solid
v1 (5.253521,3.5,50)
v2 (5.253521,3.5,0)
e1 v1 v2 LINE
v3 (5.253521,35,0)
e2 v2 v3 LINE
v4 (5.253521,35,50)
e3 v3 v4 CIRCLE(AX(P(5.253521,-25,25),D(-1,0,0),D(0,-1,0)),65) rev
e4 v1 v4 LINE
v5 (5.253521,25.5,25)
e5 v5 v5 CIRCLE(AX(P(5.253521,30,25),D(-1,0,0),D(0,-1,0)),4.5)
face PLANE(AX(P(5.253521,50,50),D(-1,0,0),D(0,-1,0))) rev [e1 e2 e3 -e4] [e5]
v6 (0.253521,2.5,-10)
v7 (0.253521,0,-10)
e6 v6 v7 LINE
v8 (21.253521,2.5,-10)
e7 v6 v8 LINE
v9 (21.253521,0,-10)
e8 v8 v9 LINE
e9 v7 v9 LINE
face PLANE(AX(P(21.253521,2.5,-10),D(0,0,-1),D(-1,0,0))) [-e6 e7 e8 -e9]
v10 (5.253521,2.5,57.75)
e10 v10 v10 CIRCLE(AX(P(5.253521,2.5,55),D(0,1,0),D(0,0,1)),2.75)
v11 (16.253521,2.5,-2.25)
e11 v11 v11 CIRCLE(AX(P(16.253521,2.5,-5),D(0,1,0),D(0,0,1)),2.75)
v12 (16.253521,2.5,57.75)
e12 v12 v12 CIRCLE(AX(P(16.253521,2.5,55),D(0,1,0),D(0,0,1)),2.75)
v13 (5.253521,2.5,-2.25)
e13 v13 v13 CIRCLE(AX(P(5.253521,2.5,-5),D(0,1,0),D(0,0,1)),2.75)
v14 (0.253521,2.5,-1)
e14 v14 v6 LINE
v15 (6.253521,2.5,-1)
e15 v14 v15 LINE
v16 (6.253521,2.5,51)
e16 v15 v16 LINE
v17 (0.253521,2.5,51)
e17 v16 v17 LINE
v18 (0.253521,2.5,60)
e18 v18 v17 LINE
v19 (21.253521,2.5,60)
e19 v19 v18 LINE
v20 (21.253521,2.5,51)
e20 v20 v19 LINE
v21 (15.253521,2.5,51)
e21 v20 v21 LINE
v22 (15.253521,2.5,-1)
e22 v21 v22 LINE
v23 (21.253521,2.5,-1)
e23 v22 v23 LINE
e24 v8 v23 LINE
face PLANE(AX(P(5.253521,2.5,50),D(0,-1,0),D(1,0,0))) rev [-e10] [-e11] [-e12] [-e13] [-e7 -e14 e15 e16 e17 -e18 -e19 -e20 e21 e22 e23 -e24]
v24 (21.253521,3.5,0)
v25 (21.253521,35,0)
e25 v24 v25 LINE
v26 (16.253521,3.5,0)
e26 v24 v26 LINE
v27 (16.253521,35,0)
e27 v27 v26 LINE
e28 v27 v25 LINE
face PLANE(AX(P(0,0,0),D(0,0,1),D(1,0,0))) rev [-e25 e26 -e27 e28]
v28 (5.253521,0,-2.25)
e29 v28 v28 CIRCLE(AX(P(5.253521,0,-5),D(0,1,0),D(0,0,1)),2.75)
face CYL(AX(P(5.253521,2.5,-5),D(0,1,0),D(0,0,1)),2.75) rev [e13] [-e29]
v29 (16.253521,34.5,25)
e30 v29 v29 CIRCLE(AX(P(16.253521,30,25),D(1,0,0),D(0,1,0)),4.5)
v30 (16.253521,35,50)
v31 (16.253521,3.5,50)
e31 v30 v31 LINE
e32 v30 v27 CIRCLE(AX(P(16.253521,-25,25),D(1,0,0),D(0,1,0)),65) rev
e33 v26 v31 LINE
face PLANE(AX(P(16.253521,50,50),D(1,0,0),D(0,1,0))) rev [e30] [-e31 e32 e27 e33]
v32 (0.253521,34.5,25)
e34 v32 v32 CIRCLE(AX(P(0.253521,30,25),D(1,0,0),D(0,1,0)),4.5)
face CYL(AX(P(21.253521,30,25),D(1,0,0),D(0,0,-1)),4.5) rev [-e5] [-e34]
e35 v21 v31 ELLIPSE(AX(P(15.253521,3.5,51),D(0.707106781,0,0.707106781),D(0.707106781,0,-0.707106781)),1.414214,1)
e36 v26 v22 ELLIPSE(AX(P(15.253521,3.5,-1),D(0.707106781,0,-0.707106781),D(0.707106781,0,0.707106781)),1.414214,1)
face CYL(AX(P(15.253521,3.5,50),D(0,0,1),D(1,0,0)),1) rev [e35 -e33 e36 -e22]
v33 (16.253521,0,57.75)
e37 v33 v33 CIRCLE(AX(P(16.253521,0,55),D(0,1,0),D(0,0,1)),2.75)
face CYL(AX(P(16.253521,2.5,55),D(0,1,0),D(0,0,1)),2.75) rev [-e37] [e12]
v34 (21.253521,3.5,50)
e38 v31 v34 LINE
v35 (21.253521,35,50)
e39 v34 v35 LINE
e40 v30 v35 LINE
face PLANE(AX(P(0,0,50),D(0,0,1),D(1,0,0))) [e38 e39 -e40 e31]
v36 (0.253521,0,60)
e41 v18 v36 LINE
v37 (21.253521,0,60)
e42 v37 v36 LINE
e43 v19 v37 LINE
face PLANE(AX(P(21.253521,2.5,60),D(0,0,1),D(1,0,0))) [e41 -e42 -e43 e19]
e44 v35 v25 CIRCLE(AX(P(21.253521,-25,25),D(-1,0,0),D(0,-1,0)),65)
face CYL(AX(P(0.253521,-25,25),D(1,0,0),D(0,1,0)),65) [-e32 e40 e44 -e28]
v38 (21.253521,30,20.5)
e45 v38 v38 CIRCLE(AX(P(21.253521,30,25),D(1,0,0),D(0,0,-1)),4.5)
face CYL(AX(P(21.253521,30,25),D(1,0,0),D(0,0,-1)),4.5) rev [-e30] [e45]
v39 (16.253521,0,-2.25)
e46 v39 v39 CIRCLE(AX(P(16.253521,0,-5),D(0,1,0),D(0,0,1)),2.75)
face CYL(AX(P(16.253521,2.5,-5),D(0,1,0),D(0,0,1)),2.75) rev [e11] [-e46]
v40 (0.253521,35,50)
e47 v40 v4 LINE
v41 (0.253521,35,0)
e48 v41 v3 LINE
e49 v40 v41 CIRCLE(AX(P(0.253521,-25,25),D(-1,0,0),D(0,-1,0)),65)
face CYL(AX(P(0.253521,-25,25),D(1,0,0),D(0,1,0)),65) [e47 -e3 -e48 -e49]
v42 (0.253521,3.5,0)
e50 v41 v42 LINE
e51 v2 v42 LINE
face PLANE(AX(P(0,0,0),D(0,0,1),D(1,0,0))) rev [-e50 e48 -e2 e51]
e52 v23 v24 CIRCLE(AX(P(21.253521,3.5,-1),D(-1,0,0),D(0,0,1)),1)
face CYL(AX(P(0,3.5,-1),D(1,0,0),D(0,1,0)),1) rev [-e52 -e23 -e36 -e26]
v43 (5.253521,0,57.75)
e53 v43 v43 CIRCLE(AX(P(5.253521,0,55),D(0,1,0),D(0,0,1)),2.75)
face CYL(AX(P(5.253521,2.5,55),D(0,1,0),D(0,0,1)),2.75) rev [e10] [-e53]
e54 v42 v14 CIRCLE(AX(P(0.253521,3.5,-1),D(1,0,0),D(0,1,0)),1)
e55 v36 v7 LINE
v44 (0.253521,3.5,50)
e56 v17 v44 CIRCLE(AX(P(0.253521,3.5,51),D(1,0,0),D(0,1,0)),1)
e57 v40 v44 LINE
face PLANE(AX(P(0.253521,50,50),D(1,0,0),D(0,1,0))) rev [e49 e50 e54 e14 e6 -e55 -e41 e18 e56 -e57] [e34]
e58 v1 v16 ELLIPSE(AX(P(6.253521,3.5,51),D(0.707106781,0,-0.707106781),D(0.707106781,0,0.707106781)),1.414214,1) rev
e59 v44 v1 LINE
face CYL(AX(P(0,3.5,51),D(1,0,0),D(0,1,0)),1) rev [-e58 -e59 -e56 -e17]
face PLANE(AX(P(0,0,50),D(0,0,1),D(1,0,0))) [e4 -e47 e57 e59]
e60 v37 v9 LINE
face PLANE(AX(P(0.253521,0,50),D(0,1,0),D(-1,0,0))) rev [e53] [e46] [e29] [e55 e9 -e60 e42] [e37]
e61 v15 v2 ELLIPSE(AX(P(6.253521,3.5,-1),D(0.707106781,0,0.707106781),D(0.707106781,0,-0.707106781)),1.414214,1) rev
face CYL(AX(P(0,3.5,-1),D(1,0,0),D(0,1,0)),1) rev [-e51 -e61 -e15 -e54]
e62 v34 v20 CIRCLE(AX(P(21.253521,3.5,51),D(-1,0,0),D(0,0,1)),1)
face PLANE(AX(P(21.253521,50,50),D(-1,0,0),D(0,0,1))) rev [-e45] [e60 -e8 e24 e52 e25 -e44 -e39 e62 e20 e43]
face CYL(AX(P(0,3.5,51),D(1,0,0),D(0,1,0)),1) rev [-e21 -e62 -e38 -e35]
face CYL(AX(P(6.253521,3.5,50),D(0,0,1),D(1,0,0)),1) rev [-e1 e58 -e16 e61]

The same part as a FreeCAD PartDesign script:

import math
import FreeCAD as App
import Part
import Sketcher
from FreeCAD import Vector


def edges_at(feature, points):
    """Names of the edges that pass closest to the given points."""
    edges = feature.Shape.Edges
    near = lambda p: min(range(len(edges)), key=lambda i: edges[i].distToShape(Part.Vertex(*p))[0])
    return sorted({f"Edge{near(p) + 1}" for p in points})

doc = App.newDocument("Part")
params = doc.addObject("Spreadsheet::Sheet", "Params")
for row, (alias, value) in enumerate([
    ("sketch1_width", "5 mm"),
    ("sketch1_width2", "21 mm"),
    ("sketch1_height", "50 mm"),
    ("sketch1_height2", "47.5 mm"),
    ("pad1_length", "50 mm"),
    ("sketch2_radius", "65 mm"),
    ("sketch2_width", "15 mm"),
    ("sketch2_height", "50 mm"),
    ("sketch3_diameter", "9 mm"),
    ("hole_diameter", "9 mm"),
    ("hole_depth", "30 mm"),
    ("sketch4_width", "21 mm"),
    ("sketch4_height", "10 mm"),
    ("pad2_length", "2.5 mm"),
    ("fillet_radius", "1 mm"),
    ("sketch5_diameter", "5.5 mm"),
    ("hole2_diameter", "5.5 mm"),
], start=1):
    params.set(f"A{row}", alias)
    params.set(f"B{row}", "=" + value)
    params.setAlias(f"B{row}", alias)

body = doc.addObject("PartDesign::Body", "Body")

sketch1 = doc.addObject("Sketcher::SketchObject", "Sketch")
body.addObject(sketch1)
sketch1.AttachmentSupport = (doc.XY_Plane, [""])
sketch1.MapMode = "FlatFace"
sketch1.addGeometry([
    Part.LineSegment(Vector(5, 50, 0), Vector(0, 50, 0)),
    Part.LineSegment(Vector(0, 50, 0), Vector(0, 0, 0)),
    Part.LineSegment(Vector(0, 0, 0), Vector(21, 0, 0)),
    Part.LineSegment(Vector(21, 0, 0), Vector(21, 50, 0)),
    Part.LineSegment(Vector(21, 50, 0), Vector(16, 50, 0)),
    Part.LineSegment(Vector(16, 50, 0), Vector(16, 2, 0)),
    Part.LineSegment(Vector(16, 2, 0), Vector(5, 2, 0)),
    Part.LineSegment(Vector(5, 2, 0), Vector(5, 50, 0)),
], False)
sketch1.addConstraint([
    Sketcher.Constraint("Coincident", 0, 2, 1, 1),
    Sketcher.Constraint("Coincident", 1, 2, 2, 1),
    Sketcher.Constraint("Coincident", 2, 2, 3, 1),
    Sketcher.Constraint("Coincident", 3, 2, 4, 1),
    Sketcher.Constraint("Coincident", 4, 2, 5, 1),
    Sketcher.Constraint("Coincident", 5, 2, 6, 1),
    Sketcher.Constraint("Coincident", 6, 2, 7, 1),
    Sketcher.Constraint("Coincident", 7, 2, 0, 1),
    Sketcher.Constraint("Horizontal", 0),
    Sketcher.Constraint("Vertical", 1),
    Sketcher.Constraint("Horizontal", 2),
    Sketcher.Constraint("Vertical", 3),
    Sketcher.Constraint("Horizontal", 4),
    Sketcher.Constraint("Vertical", 5),
    Sketcher.Constraint("Horizontal", 6),
    Sketcher.Constraint("Vertical", 7),
    Sketcher.Constraint("PointOnObject", 1, 2, -1),
    Sketcher.Constraint("Horizontal", 0, 2, 3, 2),
    Sketcher.Constraint("Equal", 0, 4),
    Sketcher.Constraint("DistanceX", 0, 2, 0, 1, 5.0),
    Sketcher.Constraint("DistanceX", 2, 1, 2, 2, 21.0),
    Sketcher.Constraint("DistanceY", 1, 2, 1, 1, 50.0),
    Sketcher.Constraint("DistanceY", 5, 2, 5, 1, 47.5),
    Sketcher.Constraint("DistanceX", -1, 1, 0, 2, 0.253521),
])
sketch1.setExpression("Constraints[19]", "Params.sketch1_width")
sketch1.setExpression("Constraints[20]", "Params.sketch1_width2")
sketch1.setExpression("Constraints[21]", "Params.sketch1_height")
sketch1.setExpression("Constraints[22]", "Params.sketch1_height2")
pad1 = doc.addObject("PartDesign::Pad", "Pad")
body.addObject(pad1)
pad1.Profile = sketch1
pad1.setExpression("Length", "Params.pad1_length")

sketch2 = doc.addObject("Sketcher::SketchObject", "Sketch001")
body.addObject(sketch2)
sketch2.AttachmentSupport = (doc.YZ_Plane, [""])
sketch2.MapMode = "FlatFace"
sketch2.AttachmentOffset = App.Placement(Vector(0, 0, 21.253521), App.Rotation())
sketch2.addGeometry([
    Part.LineSegment(Vector(50, 50, 0), Vector(35, 50, 0)),
    Part.ArcOfCircle(Part.Circle(Vector(-25, 25, 0), Vector(0, 0, 1), 65), math.radians(-23), math.radians(23)),
    Part.LineSegment(Vector(35, 0, 0), Vector(50, 0, 0)),
    Part.LineSegment(Vector(50, 0, 0), Vector(50, 50, 0)),
], False)
sketch2.addConstraint([
    Sketcher.Constraint("Coincident", 0, 2, 1, 2),
    Sketcher.Constraint("Coincident", 1, 1, 2, 1),
    Sketcher.Constraint("Coincident", 2, 2, 3, 1),
    Sketcher.Constraint("Coincident", 3, 2, 0, 1),
    Sketcher.Constraint("Horizontal", 0),
    Sketcher.Constraint("Horizontal", 2),
    Sketcher.Constraint("Vertical", 3),
    Sketcher.Constraint("PointOnObject", 1, 1, -1),
    Sketcher.Constraint("Vertical", 0, 2, 1, 1),
    Sketcher.Constraint("Radius", 1, 65.0),
    Sketcher.Constraint("DistanceX", 0, 2, 0, 1, 15.0),
    Sketcher.Constraint("DistanceY", 3, 1, 3, 2, 50.0),
    Sketcher.Constraint("DistanceX", 1, 3, -1, 1, 25.0),
])
sketch2.setExpression("Constraints[9]", "Params.sketch2_radius")
sketch2.setExpression("Constraints[10]", "Params.sketch2_width")
sketch2.setExpression("Constraints[11]", "Params.sketch2_height")
pocket1 = doc.addObject("PartDesign::Pocket", "Pocket")
body.addObject(pocket1)
pocket1.Profile = sketch2
pocket1.Type = "ThroughAll"

sketch3 = doc.addObject("Sketcher::SketchObject", "Sketch002")
body.addObject(sketch3)
sketch3.AttachmentSupport = (doc.YZ_Plane, [""])
sketch3.MapMode = "FlatFace"
sketch3.AttachmentOffset = App.Placement(Vector(0, 0, 21.253521), App.Rotation())
sketch3.addGeometry(Part.Circle(Vector(30, 25, 0), Vector(0, 0, 1), 4.5), False)
sketch3.addConstraint([
    Sketcher.Constraint("Diameter", 0, 9.0),
    Sketcher.Constraint("DistanceX", -1, 1, 0, 3, 30.0),
    Sketcher.Constraint("DistanceY", -1, 1, 0, 3, 25.0),
])
sketch3.setExpression("Constraints[0]", "Params.sketch3_diameter")
doc.recompute()
hole = doc.addObject("PartDesign::Hole", "Hole")
body.addObject(hole)
hole.Profile = sketch3
hole.ThreadType = "None"
hole.setExpression("Diameter", "Params.hole_diameter")
hole.DepthType = "Dimension"
hole.setExpression("Depth", "Params.hole_depth")
hole.DrillPoint = "Angled"
hole.DrillPointAngle = 118

sketch4 = doc.addObject("Sketcher::SketchObject", "Sketch003")
body.addObject(sketch4)
sketch4.AttachmentSupport = (doc.XZ_Plane, [""])
sketch4.MapMode = "FlatFace"
sketch4.addGeometry([
    Part.LineSegment(Vector(0, 0, 0), Vector(0, -10, 0)),
    Part.LineSegment(Vector(0, -10, 0), Vector(21, -10, 0)),
    Part.LineSegment(Vector(21, -10, 0), Vector(21, 0, 0)),
    Part.LineSegment(Vector(21, 0, 0), Vector(0, 0, 0)),
    Part.LineSegment(Vector(0, 60, 0), Vector(0, 50, 0)),
    Part.LineSegment(Vector(0, 50, 0), Vector(21, 50, 0)),
    Part.LineSegment(Vector(21, 50, 0), Vector(21, 60, 0)),
    Part.LineSegment(Vector(21, 60, 0), Vector(0, 60, 0)),
], False)
sketch4.addConstraint([
    Sketcher.Constraint("Coincident", 0, 2, 1, 1),
    Sketcher.Constraint("Coincident", 1, 2, 2, 1),
    Sketcher.Constraint("Coincident", 2, 2, 3, 1),
    Sketcher.Constraint("Coincident", 3, 2, 0, 1),
    Sketcher.Constraint("Coincident", 4, 2, 5, 1),
    Sketcher.Constraint("Coincident", 5, 2, 6, 1),
    Sketcher.Constraint("Coincident", 6, 2, 7, 1),
    Sketcher.Constraint("Coincident", 7, 2, 4, 1),
    Sketcher.Constraint("Vertical", 0),
    Sketcher.Constraint("Horizontal", 1),
    Sketcher.Constraint("Vertical", 2),
    Sketcher.Constraint("Horizontal", 3),
    Sketcher.Constraint("Vertical", 4),
    Sketcher.Constraint("Horizontal", 5),
    Sketcher.Constraint("Vertical", 6),
    Sketcher.Constraint("Horizontal", 7),
    Sketcher.Constraint("PointOnObject", 2, 2, -1),
    Sketcher.Constraint("Vertical", 3, 2, 4, 2),
    Sketcher.Constraint("Vertical", 2, 2, 5, 2),
    Sketcher.Constraint("Equal", 2, 4),
    Sketcher.Constraint("DistanceX", 1, 1, 1, 2, 21.0),
    Sketcher.Constraint("DistanceY", 0, 2, 0, 1, 10.0),
    Sketcher.Constraint("DistanceY", -1, 1, 4, 2, 50.0),
    Sketcher.Constraint("DistanceX", -1, 1, 0, 2, 0.253521),
])
sketch4.setExpression("Constraints[20]", "Params.sketch4_width")
sketch4.setExpression("Constraints[21]", "Params.sketch4_height")
pad2 = doc.addObject("PartDesign::Pad", "Pad001")
body.addObject(pad2)
pad2.Profile = sketch4
pad2.setExpression("Length", "Params.pad2_length")
pad2.Reversed = True
doc.recompute()

fillet = doc.addObject("PartDesign::Fillet", "Fillet")
body.addObject(fillet)
fillet.Base = (pad2, edges_at(pad2, [
    (5.254, 2.5, 25),
    (16.254, 2.5, 25),
    (2.754, 2.5, 0),
    (18.754, 2.5, 0),
    (18.754, 2.5, 50),
    (2.754, 2.5, 50),
]))
fillet.setExpression("Radius", "Params.fillet_radius")

sketch5 = doc.addObject("Sketcher::SketchObject", "Sketch004")
body.addObject(sketch5)
sketch5.AttachmentSupport = (doc.XZ_Plane, [""])
sketch5.MapMode = "FlatFace"
sketch5.AttachmentOffset = App.Placement(Vector(0, 0, -2.5), App.Rotation())
sketch5.addGeometry([
    Part.Circle(Vector(5.3, 55, 0), Vector(0, 0, 1), 2.8),
    Part.Circle(Vector(16.3, 55, 0), Vector(0, 0, 1), 2.8),
    Part.Circle(Vector(5.3, -5, 0), Vector(0, 0, 1), 2.8),
    Part.Circle(Vector(16.3, -5, 0), Vector(0, 0, 1), 2.8),
], False)
sketch5.addConstraint([
    Sketcher.Constraint("Equal", 0, 1),
    Sketcher.Constraint("Equal", 1, 2),
    Sketcher.Constraint("Equal", 2, 3),
    Sketcher.Constraint("Horizontal", 0, 3, 1, 3),
    Sketcher.Constraint("Horizontal", 2, 3, 3, 3),
    Sketcher.Constraint("Vertical", 0, 3, 2, 3),
    Sketcher.Constraint("Vertical", 1, 3, 3, 3),
    Sketcher.Constraint("Diameter", 0, 5.5),
    Sketcher.Constraint("DistanceY", -1, 1, 0, 3, 55.0),
    Sketcher.Constraint("DistanceY", 2, 3, -1, 1, 5.0),
    Sketcher.Constraint("DistanceX", 0, 3, 1, 3, 11.0),
    Sketcher.Constraint("DistanceX", -1, 1, 0, 3, 5.253521),
])
sketch5.setExpression("Constraints[7]", "Params.sketch5_diameter")
doc.recompute()
hole2 = doc.addObject("PartDesign::Hole", "Hole001")
body.addObject(hole2)
hole2.Profile = sketch5
hole2.ThreadType = "None"
hole2.setExpression("Diameter", "Params.hole2_diameter")
hole2.DepthType = "ThroughAll"
hole2.Reversed = True

doc.recompute()
